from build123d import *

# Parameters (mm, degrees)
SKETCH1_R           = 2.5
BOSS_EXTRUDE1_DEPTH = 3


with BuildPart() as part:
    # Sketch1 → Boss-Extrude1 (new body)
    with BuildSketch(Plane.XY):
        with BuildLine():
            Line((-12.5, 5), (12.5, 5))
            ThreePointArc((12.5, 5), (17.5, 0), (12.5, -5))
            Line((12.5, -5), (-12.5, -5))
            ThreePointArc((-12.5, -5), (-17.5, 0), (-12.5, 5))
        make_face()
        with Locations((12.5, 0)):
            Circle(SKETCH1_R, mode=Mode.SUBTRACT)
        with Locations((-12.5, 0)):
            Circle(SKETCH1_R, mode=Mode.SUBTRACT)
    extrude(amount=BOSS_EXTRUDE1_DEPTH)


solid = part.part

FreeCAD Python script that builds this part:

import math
import FreeCAD as App
import Part
import Sketcher
from FreeCAD import Vector

doc = App.newDocument("Part")
params = doc.addObject("Spreadsheet::Sheet", "Params")
for row, (alias, value) in enumerate([
    ("sketch1_diameter", "5 mm"),
    ("sketch1_radius", "5 mm"),
    ("sketch1_width", "25 mm"),
    ("pad1_length", "3 mm"),
], start=1):
    params.set(f"A{row}", alias)
    params.set(f"B{row}", "=" + value)
    params.setAlias(f"B{row}", alias)

body = doc.addObject("PartDesign::Body", "Body")

# Sketch on XY plane
sketch1 = body.newObject("Sketcher::SketchObject", "Sketch")
sketch1.AttachmentSupport = (doc.getObject("XY_Plane"), [""])
sketch1.MapMode = "FlatFace"
sketch1.addGeometry([
    Part.LineSegment(Vector(12.5, 5, 0), Vector(-12.5, 5, 0)),  # 0
    Part.ArcOfCircle(Part.Circle(Vector(-12.5, 0, 0), Vector(0, 0, 1), 5), math.radians(90), math.radians(270)),  # 1
    Part.LineSegment(Vector(-12.5, -5, 0), Vector(12.5, -5, 0)),  # 2
    Part.ArcOfCircle(Part.Circle(Vector(12.5, 0, 0), Vector(0, 0, 1), 5), math.radians(-90), math.radians(90)),  # 3
    Part.Circle(Vector(12.5, 0, 0), Vector(0, 0, 1), 2.5),  # 4
    Part.Circle(Vector(-12.5, 0, 0), Vector(0, 0, 1), 2.5),  # 5
], False)
sketch1.addConstraint([
    Sketcher.Constraint("Tangent", 0, 2, 1, 1),
    Sketcher.Constraint("Tangent", 1, 2, 2, 1),
    Sketcher.Constraint("Tangent", 2, 2, 3, 1),
    Sketcher.Constraint("Tangent", 3, 2, 0, 1),
    Sketcher.Constraint("Horizontal", 0),
    Sketcher.Constraint("Horizontal", 2),
    Sketcher.Constraint("Coincident", 4, 3, 3, 3),
    Sketcher.Constraint("Coincident", 5, 3, 1, 3),
    Sketcher.Constraint("Equal", 4, 5),
    Sketcher.Constraint("Symmetric", 1, 3, 3, 3, -1, 1),
    Sketcher.Constraint("Diameter", 4, 5.0),
    Sketcher.Constraint("Radius", 1, 5.0),
    Sketcher.Constraint("DistanceX", 0, 2, 0, 1, 25.0),
])
sketch1.setExpression("Constraints[10]", "Params.sketch1_diameter")
sketch1.setExpression("Constraints[11]", "Params.sketch1_radius")
sketch1.setExpression("Constraints[12]", "Params.sketch1_width")
pad1 = body.newObject("PartDesign::Pad", "Pad")
pad1.Profile = sketch1
pad1.setExpression("Length", "Params.pad1_length")

doc.recompute()
